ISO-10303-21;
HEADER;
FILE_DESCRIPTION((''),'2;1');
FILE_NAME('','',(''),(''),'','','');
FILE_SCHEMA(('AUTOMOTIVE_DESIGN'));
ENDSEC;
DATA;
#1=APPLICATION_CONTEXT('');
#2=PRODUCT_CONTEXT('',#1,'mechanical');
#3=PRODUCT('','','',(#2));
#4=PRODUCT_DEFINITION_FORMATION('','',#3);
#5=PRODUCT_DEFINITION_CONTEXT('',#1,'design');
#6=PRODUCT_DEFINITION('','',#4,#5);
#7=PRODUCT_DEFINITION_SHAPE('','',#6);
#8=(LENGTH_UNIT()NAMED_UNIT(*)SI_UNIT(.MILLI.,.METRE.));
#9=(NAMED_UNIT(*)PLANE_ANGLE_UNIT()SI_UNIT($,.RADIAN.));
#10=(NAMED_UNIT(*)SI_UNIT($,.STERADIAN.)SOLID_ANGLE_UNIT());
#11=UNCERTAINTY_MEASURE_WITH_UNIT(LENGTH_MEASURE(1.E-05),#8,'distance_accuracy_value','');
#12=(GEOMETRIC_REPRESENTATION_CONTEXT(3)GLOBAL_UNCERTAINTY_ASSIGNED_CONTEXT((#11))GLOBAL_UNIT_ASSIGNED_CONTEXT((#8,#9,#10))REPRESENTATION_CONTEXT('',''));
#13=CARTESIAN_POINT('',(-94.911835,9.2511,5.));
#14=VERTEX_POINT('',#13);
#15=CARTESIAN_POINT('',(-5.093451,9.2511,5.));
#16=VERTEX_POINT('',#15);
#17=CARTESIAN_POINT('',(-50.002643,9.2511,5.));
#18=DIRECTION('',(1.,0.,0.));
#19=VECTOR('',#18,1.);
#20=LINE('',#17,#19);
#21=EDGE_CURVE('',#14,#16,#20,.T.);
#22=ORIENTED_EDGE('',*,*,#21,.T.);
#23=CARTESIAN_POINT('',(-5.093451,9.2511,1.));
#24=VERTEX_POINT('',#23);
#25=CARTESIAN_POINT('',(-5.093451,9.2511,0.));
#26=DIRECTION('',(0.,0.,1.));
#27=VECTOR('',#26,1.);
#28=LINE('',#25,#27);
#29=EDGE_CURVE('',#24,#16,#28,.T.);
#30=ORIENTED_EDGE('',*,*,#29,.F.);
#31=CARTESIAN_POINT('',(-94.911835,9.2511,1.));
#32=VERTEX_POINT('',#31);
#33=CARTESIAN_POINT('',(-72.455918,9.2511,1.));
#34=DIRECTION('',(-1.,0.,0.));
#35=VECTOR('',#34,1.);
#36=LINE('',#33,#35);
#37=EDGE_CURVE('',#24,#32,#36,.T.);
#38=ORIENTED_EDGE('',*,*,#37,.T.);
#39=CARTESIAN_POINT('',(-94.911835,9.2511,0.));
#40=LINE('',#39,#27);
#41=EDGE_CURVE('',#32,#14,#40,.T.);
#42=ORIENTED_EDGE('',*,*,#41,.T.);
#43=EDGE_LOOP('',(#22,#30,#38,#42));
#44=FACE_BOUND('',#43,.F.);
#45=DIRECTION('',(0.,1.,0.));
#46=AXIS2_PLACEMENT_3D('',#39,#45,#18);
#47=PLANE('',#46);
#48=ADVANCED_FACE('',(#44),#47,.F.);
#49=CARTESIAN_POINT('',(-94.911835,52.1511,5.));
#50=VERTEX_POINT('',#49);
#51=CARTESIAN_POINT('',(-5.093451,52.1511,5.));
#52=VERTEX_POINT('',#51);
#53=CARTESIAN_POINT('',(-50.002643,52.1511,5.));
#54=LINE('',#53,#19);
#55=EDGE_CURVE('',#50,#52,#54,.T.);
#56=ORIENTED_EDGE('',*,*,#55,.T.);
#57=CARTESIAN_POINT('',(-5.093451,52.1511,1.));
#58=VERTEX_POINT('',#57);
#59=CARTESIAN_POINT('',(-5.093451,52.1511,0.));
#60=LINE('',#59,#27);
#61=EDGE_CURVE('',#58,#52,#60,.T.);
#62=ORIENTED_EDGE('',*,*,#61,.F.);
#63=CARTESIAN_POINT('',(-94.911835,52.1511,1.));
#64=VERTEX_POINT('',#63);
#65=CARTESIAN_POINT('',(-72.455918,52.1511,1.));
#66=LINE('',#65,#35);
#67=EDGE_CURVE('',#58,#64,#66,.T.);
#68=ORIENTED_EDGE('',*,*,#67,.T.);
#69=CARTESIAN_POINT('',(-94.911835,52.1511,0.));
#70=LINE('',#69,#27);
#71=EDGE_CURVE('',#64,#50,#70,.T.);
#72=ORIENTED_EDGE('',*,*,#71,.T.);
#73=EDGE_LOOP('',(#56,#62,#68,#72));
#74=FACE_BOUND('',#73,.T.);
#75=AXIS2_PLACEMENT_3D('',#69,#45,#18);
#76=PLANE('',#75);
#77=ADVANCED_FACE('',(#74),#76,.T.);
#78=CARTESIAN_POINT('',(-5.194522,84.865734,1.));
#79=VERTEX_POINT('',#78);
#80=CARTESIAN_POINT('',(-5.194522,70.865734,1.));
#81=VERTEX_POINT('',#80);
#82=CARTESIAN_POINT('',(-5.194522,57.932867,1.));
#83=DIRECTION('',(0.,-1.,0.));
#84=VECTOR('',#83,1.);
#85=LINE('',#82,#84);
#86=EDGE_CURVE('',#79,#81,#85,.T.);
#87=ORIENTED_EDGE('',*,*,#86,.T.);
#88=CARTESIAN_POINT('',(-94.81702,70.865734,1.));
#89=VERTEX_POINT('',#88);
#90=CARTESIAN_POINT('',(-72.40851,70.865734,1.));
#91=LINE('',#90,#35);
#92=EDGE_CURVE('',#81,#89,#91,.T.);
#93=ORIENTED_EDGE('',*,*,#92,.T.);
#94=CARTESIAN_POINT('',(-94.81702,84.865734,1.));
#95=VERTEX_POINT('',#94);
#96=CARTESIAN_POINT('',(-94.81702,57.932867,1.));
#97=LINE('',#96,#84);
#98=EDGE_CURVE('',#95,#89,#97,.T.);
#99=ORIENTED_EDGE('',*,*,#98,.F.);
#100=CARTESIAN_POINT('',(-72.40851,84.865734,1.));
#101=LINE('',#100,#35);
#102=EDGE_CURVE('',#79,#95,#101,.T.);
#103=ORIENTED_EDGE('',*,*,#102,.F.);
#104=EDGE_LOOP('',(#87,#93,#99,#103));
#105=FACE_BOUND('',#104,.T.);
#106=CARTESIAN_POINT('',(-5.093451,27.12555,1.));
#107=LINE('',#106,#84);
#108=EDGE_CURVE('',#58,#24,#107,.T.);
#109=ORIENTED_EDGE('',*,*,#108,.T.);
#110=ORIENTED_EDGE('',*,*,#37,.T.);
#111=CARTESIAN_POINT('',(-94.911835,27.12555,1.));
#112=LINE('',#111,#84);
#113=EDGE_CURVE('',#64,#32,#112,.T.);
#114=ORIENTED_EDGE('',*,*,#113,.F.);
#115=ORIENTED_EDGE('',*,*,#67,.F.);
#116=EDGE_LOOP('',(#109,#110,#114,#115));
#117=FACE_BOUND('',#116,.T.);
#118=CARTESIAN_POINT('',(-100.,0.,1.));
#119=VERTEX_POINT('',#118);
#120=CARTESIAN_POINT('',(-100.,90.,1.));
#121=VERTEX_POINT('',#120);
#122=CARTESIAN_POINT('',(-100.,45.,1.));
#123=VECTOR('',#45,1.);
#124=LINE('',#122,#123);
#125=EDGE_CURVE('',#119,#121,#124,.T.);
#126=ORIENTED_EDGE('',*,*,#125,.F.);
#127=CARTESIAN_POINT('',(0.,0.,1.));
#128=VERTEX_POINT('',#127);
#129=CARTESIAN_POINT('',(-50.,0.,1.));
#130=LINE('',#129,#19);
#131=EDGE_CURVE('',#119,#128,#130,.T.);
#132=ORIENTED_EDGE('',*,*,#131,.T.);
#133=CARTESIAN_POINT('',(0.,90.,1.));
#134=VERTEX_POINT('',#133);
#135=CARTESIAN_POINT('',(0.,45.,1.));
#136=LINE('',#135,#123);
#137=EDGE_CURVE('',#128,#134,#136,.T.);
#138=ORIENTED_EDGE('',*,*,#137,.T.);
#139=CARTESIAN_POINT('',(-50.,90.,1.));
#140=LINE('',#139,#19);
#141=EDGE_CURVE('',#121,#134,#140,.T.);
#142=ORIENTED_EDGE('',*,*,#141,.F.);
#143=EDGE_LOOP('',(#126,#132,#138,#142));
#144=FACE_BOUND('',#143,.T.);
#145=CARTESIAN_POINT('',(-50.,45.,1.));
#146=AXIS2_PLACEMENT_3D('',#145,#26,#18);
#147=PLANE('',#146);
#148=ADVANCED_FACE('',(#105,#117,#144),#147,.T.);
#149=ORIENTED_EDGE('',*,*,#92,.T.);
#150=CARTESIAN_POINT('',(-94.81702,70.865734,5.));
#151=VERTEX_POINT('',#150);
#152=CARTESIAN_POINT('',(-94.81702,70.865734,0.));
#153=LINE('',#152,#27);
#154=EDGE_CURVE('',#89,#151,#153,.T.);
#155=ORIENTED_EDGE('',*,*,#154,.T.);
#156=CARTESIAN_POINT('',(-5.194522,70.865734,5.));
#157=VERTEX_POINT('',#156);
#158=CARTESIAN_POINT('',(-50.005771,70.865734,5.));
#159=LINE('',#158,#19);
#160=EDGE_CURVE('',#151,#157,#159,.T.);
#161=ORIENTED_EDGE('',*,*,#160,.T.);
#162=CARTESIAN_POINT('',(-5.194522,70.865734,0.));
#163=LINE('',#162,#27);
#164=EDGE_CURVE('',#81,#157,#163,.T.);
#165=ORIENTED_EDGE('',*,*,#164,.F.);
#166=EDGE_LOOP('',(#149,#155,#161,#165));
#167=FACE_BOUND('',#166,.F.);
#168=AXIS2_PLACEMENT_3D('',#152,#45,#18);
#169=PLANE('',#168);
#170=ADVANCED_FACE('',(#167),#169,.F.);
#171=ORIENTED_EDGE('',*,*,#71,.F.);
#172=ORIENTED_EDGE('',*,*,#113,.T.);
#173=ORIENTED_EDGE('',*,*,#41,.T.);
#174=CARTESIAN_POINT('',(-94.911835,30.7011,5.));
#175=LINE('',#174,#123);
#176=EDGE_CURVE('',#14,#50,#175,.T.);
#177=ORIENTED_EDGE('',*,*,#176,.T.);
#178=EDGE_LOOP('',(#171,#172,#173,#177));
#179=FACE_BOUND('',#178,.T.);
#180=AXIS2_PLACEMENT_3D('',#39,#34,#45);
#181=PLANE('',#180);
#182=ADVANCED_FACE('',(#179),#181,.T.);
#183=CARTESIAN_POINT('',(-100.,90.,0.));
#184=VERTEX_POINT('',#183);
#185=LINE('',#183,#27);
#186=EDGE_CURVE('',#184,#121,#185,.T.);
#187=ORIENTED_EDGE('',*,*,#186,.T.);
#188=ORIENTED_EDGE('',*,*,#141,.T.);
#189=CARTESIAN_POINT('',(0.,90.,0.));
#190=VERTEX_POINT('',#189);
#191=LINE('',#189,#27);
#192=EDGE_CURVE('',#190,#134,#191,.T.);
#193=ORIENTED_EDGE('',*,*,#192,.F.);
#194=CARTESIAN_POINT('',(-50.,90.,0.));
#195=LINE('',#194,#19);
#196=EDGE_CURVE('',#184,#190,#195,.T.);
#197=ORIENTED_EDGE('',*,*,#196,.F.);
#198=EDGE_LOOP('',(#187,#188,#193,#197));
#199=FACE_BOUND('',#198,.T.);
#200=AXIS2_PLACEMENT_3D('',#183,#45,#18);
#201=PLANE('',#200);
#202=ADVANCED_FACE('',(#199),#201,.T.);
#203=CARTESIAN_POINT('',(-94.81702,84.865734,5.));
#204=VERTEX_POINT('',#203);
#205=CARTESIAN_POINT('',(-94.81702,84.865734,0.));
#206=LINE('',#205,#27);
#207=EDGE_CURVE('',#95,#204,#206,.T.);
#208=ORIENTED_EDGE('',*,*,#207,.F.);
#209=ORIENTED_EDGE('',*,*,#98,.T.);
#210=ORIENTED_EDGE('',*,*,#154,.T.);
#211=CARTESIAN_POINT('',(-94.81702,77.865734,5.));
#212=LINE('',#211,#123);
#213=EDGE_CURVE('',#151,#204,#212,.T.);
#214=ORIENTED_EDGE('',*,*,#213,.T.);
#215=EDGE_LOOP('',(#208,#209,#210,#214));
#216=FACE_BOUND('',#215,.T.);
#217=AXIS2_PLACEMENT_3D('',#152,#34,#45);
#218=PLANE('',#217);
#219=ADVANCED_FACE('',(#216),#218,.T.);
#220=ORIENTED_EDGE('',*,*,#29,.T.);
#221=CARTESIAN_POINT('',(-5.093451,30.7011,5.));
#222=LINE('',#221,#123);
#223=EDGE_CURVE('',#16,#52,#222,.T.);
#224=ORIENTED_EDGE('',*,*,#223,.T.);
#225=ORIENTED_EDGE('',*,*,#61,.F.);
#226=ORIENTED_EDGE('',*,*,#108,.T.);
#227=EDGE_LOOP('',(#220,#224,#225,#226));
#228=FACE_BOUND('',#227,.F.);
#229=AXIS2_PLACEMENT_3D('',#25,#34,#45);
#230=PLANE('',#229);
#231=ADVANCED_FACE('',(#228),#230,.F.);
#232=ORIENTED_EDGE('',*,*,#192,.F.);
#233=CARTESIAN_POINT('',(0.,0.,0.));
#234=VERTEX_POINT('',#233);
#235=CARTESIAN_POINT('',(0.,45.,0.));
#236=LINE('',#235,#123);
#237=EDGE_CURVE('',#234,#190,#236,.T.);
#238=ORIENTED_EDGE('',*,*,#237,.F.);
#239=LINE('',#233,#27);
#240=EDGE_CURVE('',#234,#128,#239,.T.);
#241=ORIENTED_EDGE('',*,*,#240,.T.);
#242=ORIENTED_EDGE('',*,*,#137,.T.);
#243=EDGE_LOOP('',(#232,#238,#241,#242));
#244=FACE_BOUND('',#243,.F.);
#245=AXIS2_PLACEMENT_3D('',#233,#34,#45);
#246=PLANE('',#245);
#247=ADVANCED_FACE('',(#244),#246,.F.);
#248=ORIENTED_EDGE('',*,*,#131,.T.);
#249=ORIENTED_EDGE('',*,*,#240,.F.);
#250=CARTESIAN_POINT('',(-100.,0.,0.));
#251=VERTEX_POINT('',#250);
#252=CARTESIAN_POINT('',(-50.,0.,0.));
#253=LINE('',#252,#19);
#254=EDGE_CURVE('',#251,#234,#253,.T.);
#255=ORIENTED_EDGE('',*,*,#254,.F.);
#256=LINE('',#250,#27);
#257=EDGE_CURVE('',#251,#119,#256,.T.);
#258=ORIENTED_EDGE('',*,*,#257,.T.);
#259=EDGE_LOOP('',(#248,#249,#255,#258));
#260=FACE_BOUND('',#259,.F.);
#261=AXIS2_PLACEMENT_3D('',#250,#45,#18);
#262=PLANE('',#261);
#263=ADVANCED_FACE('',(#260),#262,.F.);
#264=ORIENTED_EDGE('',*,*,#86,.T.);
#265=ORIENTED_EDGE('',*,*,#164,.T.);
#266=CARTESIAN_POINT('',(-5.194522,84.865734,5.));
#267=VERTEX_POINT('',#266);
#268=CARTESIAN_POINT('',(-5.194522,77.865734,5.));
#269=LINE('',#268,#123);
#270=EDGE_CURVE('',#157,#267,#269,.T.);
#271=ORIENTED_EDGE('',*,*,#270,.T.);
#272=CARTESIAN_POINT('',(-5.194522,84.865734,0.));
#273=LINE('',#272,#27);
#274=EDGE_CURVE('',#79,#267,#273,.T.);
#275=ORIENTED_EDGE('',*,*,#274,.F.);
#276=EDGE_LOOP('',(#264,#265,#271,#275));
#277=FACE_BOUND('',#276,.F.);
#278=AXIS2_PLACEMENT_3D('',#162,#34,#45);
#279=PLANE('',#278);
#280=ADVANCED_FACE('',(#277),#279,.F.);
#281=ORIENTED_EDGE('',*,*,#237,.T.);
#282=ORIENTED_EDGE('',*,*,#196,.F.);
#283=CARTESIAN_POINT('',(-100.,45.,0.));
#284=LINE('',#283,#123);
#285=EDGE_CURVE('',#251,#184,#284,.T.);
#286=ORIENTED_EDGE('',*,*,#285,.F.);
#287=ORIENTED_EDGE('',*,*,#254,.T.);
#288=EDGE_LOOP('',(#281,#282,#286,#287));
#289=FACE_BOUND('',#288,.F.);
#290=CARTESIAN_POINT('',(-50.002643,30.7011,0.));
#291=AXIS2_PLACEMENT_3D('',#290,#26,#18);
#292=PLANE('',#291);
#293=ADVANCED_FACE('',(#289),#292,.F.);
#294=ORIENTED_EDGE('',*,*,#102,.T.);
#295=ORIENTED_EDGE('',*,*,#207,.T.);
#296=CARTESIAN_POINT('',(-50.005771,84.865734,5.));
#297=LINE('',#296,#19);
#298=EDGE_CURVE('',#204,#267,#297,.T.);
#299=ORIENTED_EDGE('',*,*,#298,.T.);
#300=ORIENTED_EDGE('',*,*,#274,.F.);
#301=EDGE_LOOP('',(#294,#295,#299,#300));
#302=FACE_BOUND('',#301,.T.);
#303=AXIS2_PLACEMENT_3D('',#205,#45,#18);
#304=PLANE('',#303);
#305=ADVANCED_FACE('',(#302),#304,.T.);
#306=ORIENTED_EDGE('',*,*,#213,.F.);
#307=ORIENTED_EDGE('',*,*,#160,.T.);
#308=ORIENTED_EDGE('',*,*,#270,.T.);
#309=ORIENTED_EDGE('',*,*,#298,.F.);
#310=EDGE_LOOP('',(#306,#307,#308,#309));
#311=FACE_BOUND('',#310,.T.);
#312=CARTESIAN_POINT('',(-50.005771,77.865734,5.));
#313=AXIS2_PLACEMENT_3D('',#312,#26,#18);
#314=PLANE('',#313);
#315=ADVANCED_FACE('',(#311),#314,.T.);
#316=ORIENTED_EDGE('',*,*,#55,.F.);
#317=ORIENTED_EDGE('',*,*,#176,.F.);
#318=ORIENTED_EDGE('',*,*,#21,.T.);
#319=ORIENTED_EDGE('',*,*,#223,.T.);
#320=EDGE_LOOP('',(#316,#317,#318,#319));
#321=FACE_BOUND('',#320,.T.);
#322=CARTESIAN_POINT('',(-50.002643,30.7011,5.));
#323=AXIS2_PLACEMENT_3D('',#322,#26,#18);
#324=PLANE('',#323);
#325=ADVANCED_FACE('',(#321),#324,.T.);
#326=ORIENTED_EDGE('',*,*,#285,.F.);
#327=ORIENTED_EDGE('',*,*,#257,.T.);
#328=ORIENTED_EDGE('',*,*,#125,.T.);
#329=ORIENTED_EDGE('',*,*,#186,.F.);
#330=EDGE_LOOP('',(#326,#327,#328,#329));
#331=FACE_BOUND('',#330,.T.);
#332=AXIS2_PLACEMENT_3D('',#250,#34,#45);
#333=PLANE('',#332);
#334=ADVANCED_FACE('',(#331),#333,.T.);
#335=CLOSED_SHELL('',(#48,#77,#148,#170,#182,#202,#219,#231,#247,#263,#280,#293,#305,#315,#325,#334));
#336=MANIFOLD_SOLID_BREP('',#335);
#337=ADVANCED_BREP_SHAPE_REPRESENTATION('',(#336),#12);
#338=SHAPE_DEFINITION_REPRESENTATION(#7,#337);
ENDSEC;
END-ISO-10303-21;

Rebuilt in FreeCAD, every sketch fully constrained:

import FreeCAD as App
import Part
import Sketcher
Q = App.Units.Quantity


def add_polygon(sketch, points):
    """Adds a closed chain of lines whose ends are joined by coincident constraints."""
    first, n = sketch.GeometryCount, len(points)
    for a, b in zip(points, points[1:] + points[:1]):
        sketch.addGeometry(Part.LineSegment(App.Vector(*a, 0), App.Vector(*b, 0)), False)
    for i in range(n):
        sketch.addConstraint(Sketcher.Constraint("Coincident", first + i, 2, first + (i + 1) % n, 1))

doc = App.newDocument("Part")
body = doc.addObject("PartDesign::Body", "Body")

sketch1 = body.newObject("Sketcher::SketchObject", "Sketch")
sketch1.AttachmentSupport = (doc.getObject("XY_Plane"), [""])
sketch1.MapMode = "FlatFace"
add_polygon(sketch1, [(-100, 90), (-100, 0), (0, 0), (0, 90)])
sketch1.addConstraint(Sketcher.Constraint("Vertical", 0))
sketch1.addConstraint(Sketcher.Constraint("Horizontal", 1))
sketch1.addConstraint(Sketcher.Constraint("Vertical", 2))
sketch1.addConstraint(Sketcher.Constraint("Horizontal", 3))
sketch1.addConstraint(Sketcher.Constraint("Coincident", 1, 2, -1, 1))
sketch1.addConstraint(Sketcher.Constraint("DistanceX", 1, 1, 1, 2, Q("100 mm")))
sketch1.addConstraint(Sketcher.Constraint("DistanceY", 0, 2, 0, 1, Q("90 mm")))
pad1 = body.newObject("PartDesign::Pad", "Pad")
pad1.Profile = sketch1
pad1.Length = 1

sketch2 = body.newObject("Sketcher::SketchObject", "Sketch001")
sketch2.AttachmentSupport = (doc.getObject("XY_Plane"), [""])
sketch2.MapMode = "FlatFace"
add_polygon(sketch2, [(-94.81702, 84.865734), (-94.81702, 70.865734), (-5.194522, 70.865734), (-5.194522, 84.865734)])
sketch2.addConstraint(Sketcher.Constraint("Vertical", 0))
sketch2.addConstraint(Sketcher.Constraint("Horizontal", 1))
sketch2.addConstraint(Sketcher.Constraint("Vertical", 2))
sketch2.addConstraint(Sketcher.Constraint("Horizontal", 3))
sketch2.addConstraint(Sketcher.Constraint("DistanceY", 0, 2, 0, 1, Q("14 mm")))
sketch2.addConstraint(Sketcher.Constraint("DistanceX", 1, 1, 1, 2, Q("89.622498 mm")))
sketch2.addConstraint(Sketcher.Constraint("DistanceX", 0, 2, -1, 1, Q("94.81702 mm")))
sketch2.addConstraint(Sketcher.Constraint("DistanceY", -1, 1, 0, 2, Q("70.865734 mm")))
pad2 = body.newObject("PartDesign::Pad", "Pad001")
pad2.Profile = sketch2
pad2.Length = 5

sketch3 = body.newObject("Sketcher::SketchObject", "Sketch002")
sketch3.AttachmentSupport = (doc.getObject("XY_Plane"), [""])
sketch3.MapMode = "FlatFace"
add_polygon(sketch3, [(-94.911835, 52.1511), (-94.911835, 9.2511), (-5.093451, 9.2511), (-5.093451, 52.1511)])
sketch3.addConstraint(Sketcher.Constraint("Vertical", 0))
sketch3.addConstraint(Sketcher.Constraint("Horizontal", 1))
sketch3.addConstraint(Sketcher.Constraint("Vertical", 2))
sketch3.addConstraint(Sketcher.Constraint("Horizontal", 3))
sketch3.addConstraint(Sketcher.Constraint("DistanceY", 0, 2, 0, 1, Q("42.9 mm")))
sketch3.addConstraint(Sketcher.Constraint("DistanceY", -1, 1, 0, 2, Q("9.2511 mm")))
sketch3.addConstraint(Sketcher.Constraint("DistanceX", 1, 1, 1, 2, Q("89.818385 mm")))
sketch3.addConstraint(Sketcher.Constraint("DistanceX", 1, 2, -1, 1, Q("5.093451 mm")))
pad3 = body.newObject("PartDesign::Pad", "Pad002")
pad3.Profile = sketch3
pad3.Length = 5

doc.recompute()
